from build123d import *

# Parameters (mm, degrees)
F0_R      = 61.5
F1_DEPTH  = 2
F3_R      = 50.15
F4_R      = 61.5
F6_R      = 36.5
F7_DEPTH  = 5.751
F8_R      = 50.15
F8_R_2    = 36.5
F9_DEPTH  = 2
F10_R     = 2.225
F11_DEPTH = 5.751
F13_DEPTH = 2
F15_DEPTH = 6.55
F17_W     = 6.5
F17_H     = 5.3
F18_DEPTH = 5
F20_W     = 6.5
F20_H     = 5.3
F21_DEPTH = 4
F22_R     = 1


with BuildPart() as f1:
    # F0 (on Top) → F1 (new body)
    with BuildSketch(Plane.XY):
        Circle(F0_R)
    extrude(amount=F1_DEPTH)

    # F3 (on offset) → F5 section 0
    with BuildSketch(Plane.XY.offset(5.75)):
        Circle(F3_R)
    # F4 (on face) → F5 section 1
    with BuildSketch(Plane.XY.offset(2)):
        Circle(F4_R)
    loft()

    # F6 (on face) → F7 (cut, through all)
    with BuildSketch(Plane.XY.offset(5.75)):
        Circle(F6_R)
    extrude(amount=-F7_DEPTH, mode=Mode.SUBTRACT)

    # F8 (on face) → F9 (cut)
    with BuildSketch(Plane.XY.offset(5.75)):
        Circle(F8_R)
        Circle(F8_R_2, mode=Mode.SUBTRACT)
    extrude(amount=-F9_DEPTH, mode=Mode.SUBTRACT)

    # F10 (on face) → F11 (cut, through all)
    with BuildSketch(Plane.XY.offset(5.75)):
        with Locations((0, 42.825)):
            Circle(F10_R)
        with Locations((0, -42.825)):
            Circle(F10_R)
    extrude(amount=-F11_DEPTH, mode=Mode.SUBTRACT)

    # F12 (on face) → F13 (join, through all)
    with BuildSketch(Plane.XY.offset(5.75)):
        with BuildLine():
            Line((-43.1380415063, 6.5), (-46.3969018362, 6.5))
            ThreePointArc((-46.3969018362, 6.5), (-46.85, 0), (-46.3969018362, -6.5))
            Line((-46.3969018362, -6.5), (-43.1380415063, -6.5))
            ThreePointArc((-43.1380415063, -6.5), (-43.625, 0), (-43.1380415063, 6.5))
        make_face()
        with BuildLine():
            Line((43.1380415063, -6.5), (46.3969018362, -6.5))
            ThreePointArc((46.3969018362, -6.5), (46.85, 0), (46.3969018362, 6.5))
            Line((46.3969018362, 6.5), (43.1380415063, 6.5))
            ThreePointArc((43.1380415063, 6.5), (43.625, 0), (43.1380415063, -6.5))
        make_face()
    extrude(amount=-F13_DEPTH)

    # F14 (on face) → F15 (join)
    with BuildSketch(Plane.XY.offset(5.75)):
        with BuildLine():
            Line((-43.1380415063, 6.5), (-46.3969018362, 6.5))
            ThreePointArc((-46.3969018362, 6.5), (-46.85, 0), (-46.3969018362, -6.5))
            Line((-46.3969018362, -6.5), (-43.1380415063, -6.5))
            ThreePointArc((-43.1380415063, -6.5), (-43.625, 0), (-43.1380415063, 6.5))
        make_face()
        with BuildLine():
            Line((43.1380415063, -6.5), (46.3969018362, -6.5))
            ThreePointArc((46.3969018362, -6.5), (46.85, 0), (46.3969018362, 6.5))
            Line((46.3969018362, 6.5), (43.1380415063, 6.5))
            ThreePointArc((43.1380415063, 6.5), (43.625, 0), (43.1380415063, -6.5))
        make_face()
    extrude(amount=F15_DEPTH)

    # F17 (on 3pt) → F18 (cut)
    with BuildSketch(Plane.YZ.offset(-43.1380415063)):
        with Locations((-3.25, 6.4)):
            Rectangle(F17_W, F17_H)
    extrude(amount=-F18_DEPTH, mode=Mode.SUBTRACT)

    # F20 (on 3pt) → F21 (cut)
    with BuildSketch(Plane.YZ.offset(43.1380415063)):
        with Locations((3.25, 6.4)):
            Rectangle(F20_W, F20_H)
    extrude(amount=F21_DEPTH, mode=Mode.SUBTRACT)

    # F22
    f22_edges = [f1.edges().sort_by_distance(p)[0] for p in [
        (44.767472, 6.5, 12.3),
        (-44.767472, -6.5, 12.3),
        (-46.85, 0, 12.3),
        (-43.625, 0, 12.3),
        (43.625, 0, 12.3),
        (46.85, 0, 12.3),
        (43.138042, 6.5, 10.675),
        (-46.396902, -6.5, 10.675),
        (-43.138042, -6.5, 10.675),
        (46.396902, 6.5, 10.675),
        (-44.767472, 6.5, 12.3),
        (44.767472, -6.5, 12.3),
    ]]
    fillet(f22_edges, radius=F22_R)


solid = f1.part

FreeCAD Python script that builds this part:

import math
import FreeCAD as App
import Part
import Sketcher

V = App.Vector
Q = App.Units.Quantity


def edges_at(feature, points):
    """Names of the edges that pass closest to the given points."""
    edges = feature.Shape.Edges
    near = lambda p: min(range(len(edges)), key=lambda i: edges[i].distToShape(Part.Vertex(*p))[0])
    return sorted({f"Edge{near(p) + 1}" for p in points})

doc = App.newDocument("Part")
body = doc.addObject("PartDesign::Body", "Body")

# Sketch on XY plane
sketch1 = body.newObject("Sketcher::SketchObject", "Sketch")
sketch1.AttachmentSupport = (doc.getObject("XY_Plane"), [""])
sketch1.MapMode = "FlatFace"
sketch1.addGeometry(Part.Circle(V(0, 0, 0), V(0, 0, 1), 61.5), False)
sketch1.addConstraint(Sketcher.Constraint("Coincident", 0, 3, -1, 1))
sketch1.addConstraint(Sketcher.Constraint("Diameter", 0, Q("123 mm")))
pad1 = body.newObject("PartDesign::Pad", "Pad")
pad1.Profile = sketch1
pad1.Length = 2

# Sketch on XY plane
sketch2 = body.newObject("Sketcher::SketchObject", "Sketch001")
sketch2.AttachmentSupport = (doc.getObject("XY_Plane"), [""])
sketch2.MapMode = "FlatFace"
sketch2.AttachmentOffset = App.Placement(V(0, 0, 5.75), App.Rotation())
sketch2.addGeometry(Part.Circle(V(0, 0, 0), V(0, 0, 1), 50.15), False)
sketch2.addConstraint(Sketcher.Constraint("Coincident", 0, 3, -1, 1))
sketch2.addConstraint(Sketcher.Constraint("Diameter", 0, Q("100.3 mm")))

# Sketch on XY plane
sketch3 = body.newObject("Sketcher::SketchObject", "Sketch002")
sketch3.AttachmentSupport = (doc.getObject("XY_Plane"), [""])
sketch3.MapMode = "FlatFace"
sketch3.AttachmentOffset = App.Placement(V(0, 0, 2), App.Rotation())
sketch3.addGeometry(Part.Circle(V(0, 0, 0), V(0, 0, 1), 61.5), False)
sketch3.addConstraint(Sketcher.Constraint("Coincident", 0, 3, -1, 1))
sketch3.addConstraint(Sketcher.Constraint("Diameter", 0, Q("123 mm")))

additiveloft = body.newObject("PartDesign::AdditiveLoft", "AdditiveLoft")
additiveloft.Profile = sketch2
additiveloft.Sections = [sketch3]

# Sketch on XY plane
sketch4 = body.newObject("Sketcher::SketchObject", "Sketch003")
sketch4.AttachmentSupport = (doc.getObject("XY_Plane"), [""])
sketch4.MapMode = "FlatFace"
sketch4.AttachmentOffset = App.Placement(V(0, 0, 5.75), App.Rotation())
sketch4.addGeometry(Part.Circle(V(0, 0, 0), V(0, 0, 1), 36.5), False)
sketch4.addConstraint(Sketcher.Constraint("Coincident", 0, 3, -1, 1))
sketch4.addConstraint(Sketcher.Constraint("Diameter", 0, Q("73 mm")))
pocket1 = body.newObject("PartDesign::Pocket", "Pocket")
pocket1.Profile = sketch4
pocket1.Type = "ThroughAll"

# Sketch on XY plane
sketch5 = body.newObject("Sketcher::SketchObject", "Sketch004")
sketch5.AttachmentSupport = (doc.getObject("XY_Plane"), [""])
sketch5.MapMode = "FlatFace"
sketch5.AttachmentOffset = App.Placement(V(0, 0, 5.75), App.Rotation())
sketch5.addGeometry(Part.Circle(V(0, 0, 0), V(0, 0, 1), 50.15), False)
sketch5.addGeometry(Part.Circle(V(0, 0, 0), V(0, 0, 1), 36.5), False)
sketch5.addConstraint(Sketcher.Constraint("Coincident", 0, 3, -1, 1))
sketch5.addConstraint(Sketcher.Constraint("Coincident", 1, 3, -1, 1))
sketch5.addConstraint(Sketcher.Constraint("Diameter", 1, Q("73 mm")))
sketch5.addConstraint(Sketcher.Constraint("Diameter", 0, Q("100.3 mm")))
pocket2 = body.newObject("PartDesign::Pocket", "Pocket001")
pocket2.Profile = sketch5
pocket2.Length = 2

# Sketch on XY plane
sketch6 = body.newObject("Sketcher::SketchObject", "Sketch005")
sketch6.AttachmentSupport = (doc.getObject("XY_Plane"), [""])
sketch6.MapMode = "FlatFace"
sketch6.AttachmentOffset = App.Placement(V(0, 0, 5.75), App.Rotation())
sketch6.addGeometry(Part.Circle(V(0, 42.825, 0), V(0, 0, 1), 2.225), False)
sketch6.addGeometry(Part.Circle(V(0, -42.825, 0), V(0, 0, 1), 2.225), False)
sketch6.addConstraint(Sketcher.Constraint("Equal", 0, 1))
sketch6.addConstraint(Sketcher.Constraint("Symmetric", 0, 3, 1, 3, -1, 1))
sketch6.addConstraint(Sketcher.Constraint("PointOnObject", 0, 3, -2))
sketch6.addConstraint(Sketcher.Constraint("Diameter", 0, Q("4.45 mm")))
sketch6.addConstraint(Sketcher.Constraint("DistanceY", 1, 3, 0, 3, Q("85.65 mm")))
pocket3 = body.newObject("PartDesign::Pocket", "Pocket002")
pocket3.Profile = sketch6
pocket3.Type = "ThroughAll"

# Sketch on XY plane
sketch7 = body.newObject("Sketcher::SketchObject", "Sketch006")
sketch7.AttachmentSupport = (doc.getObject("XY_Plane"), [""])
sketch7.MapMode = "FlatFace"
sketch7.AttachmentOffset = App.Placement(V(0, 0, 5.75), App.Rotation())
sketch7.addGeometry(Part.LineSegment(V(-43.138042, 6.5, 0), V(-46.396902, 6.5, 0)), False)
sketch7.addGeometry(Part.ArcOfCircle(Part.Circle(V(0, 0, 0), V(0, 0, 1), 46.85), math.radians(172.02502), math.radians(187.97498)), False)
sketch7.addGeometry(Part.LineSegment(V(-46.396902, -6.5, 0), V(-43.138042, -6.5, 0)), False)
sketch7.addGeometry(Part.ArcOfCircle(Part.Circle(V(0, 0, 0), V(0, 0, 1), 43.625), math.radians(171.431186), math.radians(188.568814)), False)
sketch7.addGeometry(Part.LineSegment(V(43.138042, -6.5, 0), V(46.396902, -6.5, 0)), False)
sketch7.addGeometry(Part.ArcOfCircle(Part.Circle(V(0, 0, 0), V(0, 0, 1), 46.85), math.radians(-7.97498), math.radians(7.97498)), False)
sketch7.addGeometry(Part.LineSegment(V(46.396902, 6.5, 0), V(43.138042, 6.5, 0)), False)
sketch7.addGeometry(Part.ArcOfCircle(Part.Circle(V(0, 0, 0), V(0, 0, 1), 43.625), math.radians(-8.568814), math.radians(8.568814)), False)
sketch7.addConstraint(Sketcher.Constraint("Coincident", 0, 2, 1, 1))
sketch7.addConstraint(Sketcher.Constraint("Coincident", 1, 2, 2, 1))
sketch7.addConstraint(Sketcher.Constraint("Coincident", 2, 2, 3, 2))
sketch7.addConstraint(Sketcher.Constraint("Coincident", 3, 1, 0, 1))
sketch7.addConstraint(Sketcher.Constraint("Coincident", 4, 2, 5, 1))
sketch7.addConstraint(Sketcher.Constraint("Coincident", 5, 2, 6, 1))
sketch7.addConstraint(Sketcher.Constraint("Coincident", 6, 2, 7, 2))
sketch7.addConstraint(Sketcher.Constraint("Coincident", 7, 1, 4, 1))
sketch7.addConstraint(Sketcher.Constraint("Horizontal", 0))
sketch7.addConstraint(Sketcher.Constraint("Horizontal", 2))
sketch7.addConstraint(Sketcher.Constraint("Horizontal", 4))
sketch7.addConstraint(Sketcher.Constraint("Horizontal", 6))
sketch7.addConstraint(Sketcher.Constraint("Coincident", 1, 3, -1, 1))
sketch7.addConstraint(Sketcher.Constraint("Coincident", 3, 3, -1, 1))
sketch7.addConstraint(Sketcher.Constraint("Coincident", 5, 3, -1, 1))
sketch7.addConstraint(Sketcher.Constraint("Coincident", 7, 3, -1, 1))
sketch7.addConstraint(Sketcher.Constraint("Equal", 1, 5))
sketch7.addConstraint(Sketcher.Constraint("Equal", 3, 7))
sketch7.addConstraint(Sketcher.Constraint("Horizontal", 2, 2, 4, 2))
sketch7.addConstraint(Sketcher.Constraint("Horizontal", 3, 1, 5, 2))
sketch7.addConstraint(Sketcher.Constraint("Vertical", 0, 2, 1, 2))
sketch7.addConstraint(Sketcher.Constraint("Radius", 1, Q("46.85 mm")))
sketch7.addConstraint(Sketcher.Constraint("Radius", 3, Q("43.625 mm")))
sketch7.addConstraint(Sketcher.Constraint("DistanceY", 1, 2, 0, 2, Q("13 mm")))
pad2 = body.newObject("PartDesign::Pad", "Pad001")
pad2.Profile = sketch7
pad2.Length = 2
pad2.Reversed = True

# Sketch on XY plane
sketch8 = body.newObject("Sketcher::SketchObject", "Sketch007")
sketch8.AttachmentSupport = (doc.getObject("XY_Plane"), [""])
sketch8.MapMode = "FlatFace"
sketch8.AttachmentOffset = App.Placement(V(0, 0, 5.75), App.Rotation())
sketch8.addGeometry(Part.LineSegment(V(-43.138042, 6.5, 0), V(-46.396902, 6.5, 0)), False)
sketch8.addGeometry(Part.ArcOfCircle(Part.Circle(V(0, 0, 0), V(0, 0, 1), 46.85), math.radians(172.02502), math.radians(187.97498)), False)
sketch8.addGeometry(Part.LineSegment(V(-46.396902, -6.5, 0), V(-43.138042, -6.5, 0)), False)
sketch8.addGeometry(Part.ArcOfCircle(Part.Circle(V(0, 0, 0), V(0, 0, 1), 43.625), math.radians(171.431186), math.radians(188.568814)), False)
sketch8.addGeometry(Part.LineSegment(V(43.138042, -6.5, 0), V(46.396902, -6.5, 0)), False)
sketch8.addGeometry(Part.ArcOfCircle(Part.Circle(V(0, 0, 0), V(0, 0, 1), 46.85), math.radians(-7.97498), math.radians(7.97498)), False)
sketch8.addGeometry(Part.LineSegment(V(46.396902, 6.5, 0), V(43.138042, 6.5, 0)), False)
sketch8.addGeometry(Part.ArcOfCircle(Part.Circle(V(0, 0, 0), V(0, 0, 1), 43.625), math.radians(-8.568814), math.radians(8.568814)), False)
sketch8.addConstraint(Sketcher.Constraint("Coincident", 0, 2, 1, 1))
sketch8.addConstraint(Sketcher.Constraint("Coincident", 1, 2, 2, 1))
sketch8.addConstraint(Sketcher.Constraint("Coincident", 2, 2, 3, 2))
sketch8.addConstraint(Sketcher.Constraint("Coincident", 3, 1, 0, 1))
sketch8.addConstraint(Sketcher.Constraint("Coincident", 4, 2, 5, 1))
sketch8.addConstraint(Sketcher.Constraint("Coincident", 5, 2, 6, 1))
sketch8.addConstraint(Sketcher.Constraint("Coincident", 6, 2, 7, 2))
sketch8.addConstraint(Sketcher.Constraint("Coincident", 7, 1, 4, 1))
sketch8.addConstraint(Sketcher.Constraint("Horizontal", 0))
sketch8.addConstraint(Sketcher.Constraint("Horizontal", 2))
sketch8.addConstraint(Sketcher.Constraint("Horizontal", 4))
sketch8.addConstraint(Sketcher.Constraint("Horizontal", 6))
sketch8.addConstraint(Sketcher.Constraint("Coincident", 1, 3, -1, 1))
sketch8.addConstraint(Sketcher.Constraint("Coincident", 3, 3, -1, 1))
sketch8.addConstraint(Sketcher.Constraint("Coincident", 5, 3, -1, 1))
sketch8.addConstraint(Sketcher.Constraint("Coincident", 7, 3, -1, 1))
sketch8.addConstraint(Sketcher.Constraint("Equal", 1, 5))
sketch8.addConstraint(Sketcher.Constraint("Equal", 3, 7))
sketch8.addConstraint(Sketcher.Constraint("Horizontal", 2, 2, 4, 2))
sketch8.addConstraint(Sketcher.Constraint("Horizontal", 3, 1, 5, 2))
sketch8.addConstraint(Sketcher.Constraint("Vertical", 0, 2, 1, 2))
sketch8.addConstraint(Sketcher.Constraint("Radius", 1, Q("46.85 mm")))
sketch8.addConstraint(Sketcher.Constraint("Radius", 3, Q("43.625 mm")))
sketch8.addConstraint(Sketcher.Constraint("DistanceY", 1, 2, 0, 2, Q("13 mm")))
pad3 = body.newObject("PartDesign::Pad", "Pad002")
pad3.Profile = sketch8
pad3.Length = 6.55

# Sketch on YZ plane
sketch9 = body.newObject("Sketcher::SketchObject", "Sketch008")
sketch9.AttachmentSupport = (doc.getObject("YZ_Plane"), [""])
sketch9.MapMode = "FlatFace"
sketch9.AttachmentOffset = App.Placement(V(0, 0, -43.138042), App.Rotation())
sketch9.addGeometry(Part.LineSegment(V(-6.5, 9.05, 0), V(-6.5, 3.75, 0)), False)
sketch9.addGeometry(Part.LineSegment(V(-6.5, 3.75, 0), V(0, 3.75, 0)), False)
sketch9.addGeometry(Part.LineSegment(V(0, 3.75, 0), V(0, 9.05, 0)), False)
sketch9.addGeometry(Part.LineSegment(V(0, 9.05, 0), V(-6.5, 9.05, 0)), False)
sketch9.addConstraint(Sketcher.Constraint("Coincident", 0, 2, 1, 1))
sketch9.addConstraint(Sketcher.Constraint("Coincident", 1, 2, 2, 1))
sketch9.addConstraint(Sketcher.Constraint("Coincident", 2, 2, 3, 1))
sketch9.addConstraint(Sketcher.Constraint("Coincident", 3, 2, 0, 1))
sketch9.addConstraint(Sketcher.Constraint("Vertical", 0))
sketch9.addConstraint(Sketcher.Constraint("Horizontal", 1))
sketch9.addConstraint(Sketcher.Constraint("Vertical", 2))
sketch9.addConstraint(Sketcher.Constraint("Horizontal", 3))
sketch9.addConstraint(Sketcher.Constraint("PointOnObject", 1, 2, -2))
sketch9.addConstraint(Sketcher.Constraint("DistanceX", 1, 1, 1, 2, Q("6.5 mm")))
sketch9.addConstraint(Sketcher.Constraint("DistanceY", 0, 2, 0, 1, Q("5.3 mm")))
sketch9.addConstraint(Sketcher.Constraint("DistanceY", -1, 1, 0, 2, Q("3.75 mm")))
pocket4 = body.newObject("PartDesign::Pocket", "Pocket003")
pocket4.Profile = sketch9
pocket4.Length = 5

# Sketch on YZ plane
sketch10 = body.newObject("Sketcher::SketchObject", "Sketch009")
sketch10.AttachmentSupport = (doc.getObject("YZ_Plane"), [""])
sketch10.MapMode = "FlatFace"
sketch10.AttachmentOffset = App.Placement(V(0, 0, 43.138042), App.Rotation())
sketch10.addGeometry(Part.LineSegment(V(0, 9.05, 0), V(0, 3.75, 0)), False)
sketch10.addGeometry(Part.LineSegment(V(0, 3.75, 0), V(6.5, 3.75, 0)), False)
sketch10.addGeometry(Part.LineSegment(V(6.5, 3.75, 0), V(6.5, 9.05, 0)), False)
sketch10.addGeometry(Part.LineSegment(V(6.5, 9.05, 0), V(0, 9.05, 0)), False)
sketch10.addConstraint(Sketcher.Constraint("Coincident", 0, 2, 1, 1))
sketch10.addConstraint(Sketcher.Constraint("Coincident", 1, 2, 2, 1))
sketch10.addConstraint(Sketcher.Constraint("Coincident", 2, 2, 3, 1))
sketch10.addConstraint(Sketcher.Constraint("Coincident", 3, 2, 0, 1))
sketch10.addConstraint(Sketcher.Constraint("Vertical", 0))
sketch10.addConstraint(Sketcher.Constraint("Horizontal", 1))
sketch10.addConstraint(Sketcher.Constraint("Vertical", 2))
sketch10.addConstraint(Sketcher.Constraint("Horizontal", 3))
sketch10.addConstraint(Sketcher.Constraint("PointOnObject", 0, 2, -2))
sketch10.addConstraint(Sketcher.Constraint("DistanceX", 1, 1, 1, 2, Q("6.5 mm")))
sketch10.addConstraint(Sketcher.Constraint("DistanceY", 0, 2, 0, 1, Q("5.3 mm")))
sketch10.addConstraint(Sketcher.Constraint("DistanceY", -1, 1, 0, 2, Q("3.75 mm")))
pocket5 = body.newObject("PartDesign::Pocket", "Pocket004")
pocket5.Profile = sketch10
pocket5.Length = 4
pocket5.Reversed = True
doc.recompute()

fillet = body.newObject("PartDesign::Fillet", "Fillet")
fillet.Base = (pocket5, edges_at(pocket5, [
    (44.767, 6.5, 12.3),
    (-44.767, -6.5, 12.3),
    (-46.85, 0, 12.3),
    (-43.625, 0, 12.3),
    (43.625, 0, 12.3),
    (46.85, 0, 12.3),
    (43.138, 6.5, 10.675),
    (-46.397, -6.5, 10.675),
    (-43.138, -6.5, 10.675),
    (46.397, 6.5, 10.675),
    (-44.767, 6.5, 12.3),
    (44.767, -6.5, 12.3),
]))
fillet.Radius = 1

doc.recompute()
